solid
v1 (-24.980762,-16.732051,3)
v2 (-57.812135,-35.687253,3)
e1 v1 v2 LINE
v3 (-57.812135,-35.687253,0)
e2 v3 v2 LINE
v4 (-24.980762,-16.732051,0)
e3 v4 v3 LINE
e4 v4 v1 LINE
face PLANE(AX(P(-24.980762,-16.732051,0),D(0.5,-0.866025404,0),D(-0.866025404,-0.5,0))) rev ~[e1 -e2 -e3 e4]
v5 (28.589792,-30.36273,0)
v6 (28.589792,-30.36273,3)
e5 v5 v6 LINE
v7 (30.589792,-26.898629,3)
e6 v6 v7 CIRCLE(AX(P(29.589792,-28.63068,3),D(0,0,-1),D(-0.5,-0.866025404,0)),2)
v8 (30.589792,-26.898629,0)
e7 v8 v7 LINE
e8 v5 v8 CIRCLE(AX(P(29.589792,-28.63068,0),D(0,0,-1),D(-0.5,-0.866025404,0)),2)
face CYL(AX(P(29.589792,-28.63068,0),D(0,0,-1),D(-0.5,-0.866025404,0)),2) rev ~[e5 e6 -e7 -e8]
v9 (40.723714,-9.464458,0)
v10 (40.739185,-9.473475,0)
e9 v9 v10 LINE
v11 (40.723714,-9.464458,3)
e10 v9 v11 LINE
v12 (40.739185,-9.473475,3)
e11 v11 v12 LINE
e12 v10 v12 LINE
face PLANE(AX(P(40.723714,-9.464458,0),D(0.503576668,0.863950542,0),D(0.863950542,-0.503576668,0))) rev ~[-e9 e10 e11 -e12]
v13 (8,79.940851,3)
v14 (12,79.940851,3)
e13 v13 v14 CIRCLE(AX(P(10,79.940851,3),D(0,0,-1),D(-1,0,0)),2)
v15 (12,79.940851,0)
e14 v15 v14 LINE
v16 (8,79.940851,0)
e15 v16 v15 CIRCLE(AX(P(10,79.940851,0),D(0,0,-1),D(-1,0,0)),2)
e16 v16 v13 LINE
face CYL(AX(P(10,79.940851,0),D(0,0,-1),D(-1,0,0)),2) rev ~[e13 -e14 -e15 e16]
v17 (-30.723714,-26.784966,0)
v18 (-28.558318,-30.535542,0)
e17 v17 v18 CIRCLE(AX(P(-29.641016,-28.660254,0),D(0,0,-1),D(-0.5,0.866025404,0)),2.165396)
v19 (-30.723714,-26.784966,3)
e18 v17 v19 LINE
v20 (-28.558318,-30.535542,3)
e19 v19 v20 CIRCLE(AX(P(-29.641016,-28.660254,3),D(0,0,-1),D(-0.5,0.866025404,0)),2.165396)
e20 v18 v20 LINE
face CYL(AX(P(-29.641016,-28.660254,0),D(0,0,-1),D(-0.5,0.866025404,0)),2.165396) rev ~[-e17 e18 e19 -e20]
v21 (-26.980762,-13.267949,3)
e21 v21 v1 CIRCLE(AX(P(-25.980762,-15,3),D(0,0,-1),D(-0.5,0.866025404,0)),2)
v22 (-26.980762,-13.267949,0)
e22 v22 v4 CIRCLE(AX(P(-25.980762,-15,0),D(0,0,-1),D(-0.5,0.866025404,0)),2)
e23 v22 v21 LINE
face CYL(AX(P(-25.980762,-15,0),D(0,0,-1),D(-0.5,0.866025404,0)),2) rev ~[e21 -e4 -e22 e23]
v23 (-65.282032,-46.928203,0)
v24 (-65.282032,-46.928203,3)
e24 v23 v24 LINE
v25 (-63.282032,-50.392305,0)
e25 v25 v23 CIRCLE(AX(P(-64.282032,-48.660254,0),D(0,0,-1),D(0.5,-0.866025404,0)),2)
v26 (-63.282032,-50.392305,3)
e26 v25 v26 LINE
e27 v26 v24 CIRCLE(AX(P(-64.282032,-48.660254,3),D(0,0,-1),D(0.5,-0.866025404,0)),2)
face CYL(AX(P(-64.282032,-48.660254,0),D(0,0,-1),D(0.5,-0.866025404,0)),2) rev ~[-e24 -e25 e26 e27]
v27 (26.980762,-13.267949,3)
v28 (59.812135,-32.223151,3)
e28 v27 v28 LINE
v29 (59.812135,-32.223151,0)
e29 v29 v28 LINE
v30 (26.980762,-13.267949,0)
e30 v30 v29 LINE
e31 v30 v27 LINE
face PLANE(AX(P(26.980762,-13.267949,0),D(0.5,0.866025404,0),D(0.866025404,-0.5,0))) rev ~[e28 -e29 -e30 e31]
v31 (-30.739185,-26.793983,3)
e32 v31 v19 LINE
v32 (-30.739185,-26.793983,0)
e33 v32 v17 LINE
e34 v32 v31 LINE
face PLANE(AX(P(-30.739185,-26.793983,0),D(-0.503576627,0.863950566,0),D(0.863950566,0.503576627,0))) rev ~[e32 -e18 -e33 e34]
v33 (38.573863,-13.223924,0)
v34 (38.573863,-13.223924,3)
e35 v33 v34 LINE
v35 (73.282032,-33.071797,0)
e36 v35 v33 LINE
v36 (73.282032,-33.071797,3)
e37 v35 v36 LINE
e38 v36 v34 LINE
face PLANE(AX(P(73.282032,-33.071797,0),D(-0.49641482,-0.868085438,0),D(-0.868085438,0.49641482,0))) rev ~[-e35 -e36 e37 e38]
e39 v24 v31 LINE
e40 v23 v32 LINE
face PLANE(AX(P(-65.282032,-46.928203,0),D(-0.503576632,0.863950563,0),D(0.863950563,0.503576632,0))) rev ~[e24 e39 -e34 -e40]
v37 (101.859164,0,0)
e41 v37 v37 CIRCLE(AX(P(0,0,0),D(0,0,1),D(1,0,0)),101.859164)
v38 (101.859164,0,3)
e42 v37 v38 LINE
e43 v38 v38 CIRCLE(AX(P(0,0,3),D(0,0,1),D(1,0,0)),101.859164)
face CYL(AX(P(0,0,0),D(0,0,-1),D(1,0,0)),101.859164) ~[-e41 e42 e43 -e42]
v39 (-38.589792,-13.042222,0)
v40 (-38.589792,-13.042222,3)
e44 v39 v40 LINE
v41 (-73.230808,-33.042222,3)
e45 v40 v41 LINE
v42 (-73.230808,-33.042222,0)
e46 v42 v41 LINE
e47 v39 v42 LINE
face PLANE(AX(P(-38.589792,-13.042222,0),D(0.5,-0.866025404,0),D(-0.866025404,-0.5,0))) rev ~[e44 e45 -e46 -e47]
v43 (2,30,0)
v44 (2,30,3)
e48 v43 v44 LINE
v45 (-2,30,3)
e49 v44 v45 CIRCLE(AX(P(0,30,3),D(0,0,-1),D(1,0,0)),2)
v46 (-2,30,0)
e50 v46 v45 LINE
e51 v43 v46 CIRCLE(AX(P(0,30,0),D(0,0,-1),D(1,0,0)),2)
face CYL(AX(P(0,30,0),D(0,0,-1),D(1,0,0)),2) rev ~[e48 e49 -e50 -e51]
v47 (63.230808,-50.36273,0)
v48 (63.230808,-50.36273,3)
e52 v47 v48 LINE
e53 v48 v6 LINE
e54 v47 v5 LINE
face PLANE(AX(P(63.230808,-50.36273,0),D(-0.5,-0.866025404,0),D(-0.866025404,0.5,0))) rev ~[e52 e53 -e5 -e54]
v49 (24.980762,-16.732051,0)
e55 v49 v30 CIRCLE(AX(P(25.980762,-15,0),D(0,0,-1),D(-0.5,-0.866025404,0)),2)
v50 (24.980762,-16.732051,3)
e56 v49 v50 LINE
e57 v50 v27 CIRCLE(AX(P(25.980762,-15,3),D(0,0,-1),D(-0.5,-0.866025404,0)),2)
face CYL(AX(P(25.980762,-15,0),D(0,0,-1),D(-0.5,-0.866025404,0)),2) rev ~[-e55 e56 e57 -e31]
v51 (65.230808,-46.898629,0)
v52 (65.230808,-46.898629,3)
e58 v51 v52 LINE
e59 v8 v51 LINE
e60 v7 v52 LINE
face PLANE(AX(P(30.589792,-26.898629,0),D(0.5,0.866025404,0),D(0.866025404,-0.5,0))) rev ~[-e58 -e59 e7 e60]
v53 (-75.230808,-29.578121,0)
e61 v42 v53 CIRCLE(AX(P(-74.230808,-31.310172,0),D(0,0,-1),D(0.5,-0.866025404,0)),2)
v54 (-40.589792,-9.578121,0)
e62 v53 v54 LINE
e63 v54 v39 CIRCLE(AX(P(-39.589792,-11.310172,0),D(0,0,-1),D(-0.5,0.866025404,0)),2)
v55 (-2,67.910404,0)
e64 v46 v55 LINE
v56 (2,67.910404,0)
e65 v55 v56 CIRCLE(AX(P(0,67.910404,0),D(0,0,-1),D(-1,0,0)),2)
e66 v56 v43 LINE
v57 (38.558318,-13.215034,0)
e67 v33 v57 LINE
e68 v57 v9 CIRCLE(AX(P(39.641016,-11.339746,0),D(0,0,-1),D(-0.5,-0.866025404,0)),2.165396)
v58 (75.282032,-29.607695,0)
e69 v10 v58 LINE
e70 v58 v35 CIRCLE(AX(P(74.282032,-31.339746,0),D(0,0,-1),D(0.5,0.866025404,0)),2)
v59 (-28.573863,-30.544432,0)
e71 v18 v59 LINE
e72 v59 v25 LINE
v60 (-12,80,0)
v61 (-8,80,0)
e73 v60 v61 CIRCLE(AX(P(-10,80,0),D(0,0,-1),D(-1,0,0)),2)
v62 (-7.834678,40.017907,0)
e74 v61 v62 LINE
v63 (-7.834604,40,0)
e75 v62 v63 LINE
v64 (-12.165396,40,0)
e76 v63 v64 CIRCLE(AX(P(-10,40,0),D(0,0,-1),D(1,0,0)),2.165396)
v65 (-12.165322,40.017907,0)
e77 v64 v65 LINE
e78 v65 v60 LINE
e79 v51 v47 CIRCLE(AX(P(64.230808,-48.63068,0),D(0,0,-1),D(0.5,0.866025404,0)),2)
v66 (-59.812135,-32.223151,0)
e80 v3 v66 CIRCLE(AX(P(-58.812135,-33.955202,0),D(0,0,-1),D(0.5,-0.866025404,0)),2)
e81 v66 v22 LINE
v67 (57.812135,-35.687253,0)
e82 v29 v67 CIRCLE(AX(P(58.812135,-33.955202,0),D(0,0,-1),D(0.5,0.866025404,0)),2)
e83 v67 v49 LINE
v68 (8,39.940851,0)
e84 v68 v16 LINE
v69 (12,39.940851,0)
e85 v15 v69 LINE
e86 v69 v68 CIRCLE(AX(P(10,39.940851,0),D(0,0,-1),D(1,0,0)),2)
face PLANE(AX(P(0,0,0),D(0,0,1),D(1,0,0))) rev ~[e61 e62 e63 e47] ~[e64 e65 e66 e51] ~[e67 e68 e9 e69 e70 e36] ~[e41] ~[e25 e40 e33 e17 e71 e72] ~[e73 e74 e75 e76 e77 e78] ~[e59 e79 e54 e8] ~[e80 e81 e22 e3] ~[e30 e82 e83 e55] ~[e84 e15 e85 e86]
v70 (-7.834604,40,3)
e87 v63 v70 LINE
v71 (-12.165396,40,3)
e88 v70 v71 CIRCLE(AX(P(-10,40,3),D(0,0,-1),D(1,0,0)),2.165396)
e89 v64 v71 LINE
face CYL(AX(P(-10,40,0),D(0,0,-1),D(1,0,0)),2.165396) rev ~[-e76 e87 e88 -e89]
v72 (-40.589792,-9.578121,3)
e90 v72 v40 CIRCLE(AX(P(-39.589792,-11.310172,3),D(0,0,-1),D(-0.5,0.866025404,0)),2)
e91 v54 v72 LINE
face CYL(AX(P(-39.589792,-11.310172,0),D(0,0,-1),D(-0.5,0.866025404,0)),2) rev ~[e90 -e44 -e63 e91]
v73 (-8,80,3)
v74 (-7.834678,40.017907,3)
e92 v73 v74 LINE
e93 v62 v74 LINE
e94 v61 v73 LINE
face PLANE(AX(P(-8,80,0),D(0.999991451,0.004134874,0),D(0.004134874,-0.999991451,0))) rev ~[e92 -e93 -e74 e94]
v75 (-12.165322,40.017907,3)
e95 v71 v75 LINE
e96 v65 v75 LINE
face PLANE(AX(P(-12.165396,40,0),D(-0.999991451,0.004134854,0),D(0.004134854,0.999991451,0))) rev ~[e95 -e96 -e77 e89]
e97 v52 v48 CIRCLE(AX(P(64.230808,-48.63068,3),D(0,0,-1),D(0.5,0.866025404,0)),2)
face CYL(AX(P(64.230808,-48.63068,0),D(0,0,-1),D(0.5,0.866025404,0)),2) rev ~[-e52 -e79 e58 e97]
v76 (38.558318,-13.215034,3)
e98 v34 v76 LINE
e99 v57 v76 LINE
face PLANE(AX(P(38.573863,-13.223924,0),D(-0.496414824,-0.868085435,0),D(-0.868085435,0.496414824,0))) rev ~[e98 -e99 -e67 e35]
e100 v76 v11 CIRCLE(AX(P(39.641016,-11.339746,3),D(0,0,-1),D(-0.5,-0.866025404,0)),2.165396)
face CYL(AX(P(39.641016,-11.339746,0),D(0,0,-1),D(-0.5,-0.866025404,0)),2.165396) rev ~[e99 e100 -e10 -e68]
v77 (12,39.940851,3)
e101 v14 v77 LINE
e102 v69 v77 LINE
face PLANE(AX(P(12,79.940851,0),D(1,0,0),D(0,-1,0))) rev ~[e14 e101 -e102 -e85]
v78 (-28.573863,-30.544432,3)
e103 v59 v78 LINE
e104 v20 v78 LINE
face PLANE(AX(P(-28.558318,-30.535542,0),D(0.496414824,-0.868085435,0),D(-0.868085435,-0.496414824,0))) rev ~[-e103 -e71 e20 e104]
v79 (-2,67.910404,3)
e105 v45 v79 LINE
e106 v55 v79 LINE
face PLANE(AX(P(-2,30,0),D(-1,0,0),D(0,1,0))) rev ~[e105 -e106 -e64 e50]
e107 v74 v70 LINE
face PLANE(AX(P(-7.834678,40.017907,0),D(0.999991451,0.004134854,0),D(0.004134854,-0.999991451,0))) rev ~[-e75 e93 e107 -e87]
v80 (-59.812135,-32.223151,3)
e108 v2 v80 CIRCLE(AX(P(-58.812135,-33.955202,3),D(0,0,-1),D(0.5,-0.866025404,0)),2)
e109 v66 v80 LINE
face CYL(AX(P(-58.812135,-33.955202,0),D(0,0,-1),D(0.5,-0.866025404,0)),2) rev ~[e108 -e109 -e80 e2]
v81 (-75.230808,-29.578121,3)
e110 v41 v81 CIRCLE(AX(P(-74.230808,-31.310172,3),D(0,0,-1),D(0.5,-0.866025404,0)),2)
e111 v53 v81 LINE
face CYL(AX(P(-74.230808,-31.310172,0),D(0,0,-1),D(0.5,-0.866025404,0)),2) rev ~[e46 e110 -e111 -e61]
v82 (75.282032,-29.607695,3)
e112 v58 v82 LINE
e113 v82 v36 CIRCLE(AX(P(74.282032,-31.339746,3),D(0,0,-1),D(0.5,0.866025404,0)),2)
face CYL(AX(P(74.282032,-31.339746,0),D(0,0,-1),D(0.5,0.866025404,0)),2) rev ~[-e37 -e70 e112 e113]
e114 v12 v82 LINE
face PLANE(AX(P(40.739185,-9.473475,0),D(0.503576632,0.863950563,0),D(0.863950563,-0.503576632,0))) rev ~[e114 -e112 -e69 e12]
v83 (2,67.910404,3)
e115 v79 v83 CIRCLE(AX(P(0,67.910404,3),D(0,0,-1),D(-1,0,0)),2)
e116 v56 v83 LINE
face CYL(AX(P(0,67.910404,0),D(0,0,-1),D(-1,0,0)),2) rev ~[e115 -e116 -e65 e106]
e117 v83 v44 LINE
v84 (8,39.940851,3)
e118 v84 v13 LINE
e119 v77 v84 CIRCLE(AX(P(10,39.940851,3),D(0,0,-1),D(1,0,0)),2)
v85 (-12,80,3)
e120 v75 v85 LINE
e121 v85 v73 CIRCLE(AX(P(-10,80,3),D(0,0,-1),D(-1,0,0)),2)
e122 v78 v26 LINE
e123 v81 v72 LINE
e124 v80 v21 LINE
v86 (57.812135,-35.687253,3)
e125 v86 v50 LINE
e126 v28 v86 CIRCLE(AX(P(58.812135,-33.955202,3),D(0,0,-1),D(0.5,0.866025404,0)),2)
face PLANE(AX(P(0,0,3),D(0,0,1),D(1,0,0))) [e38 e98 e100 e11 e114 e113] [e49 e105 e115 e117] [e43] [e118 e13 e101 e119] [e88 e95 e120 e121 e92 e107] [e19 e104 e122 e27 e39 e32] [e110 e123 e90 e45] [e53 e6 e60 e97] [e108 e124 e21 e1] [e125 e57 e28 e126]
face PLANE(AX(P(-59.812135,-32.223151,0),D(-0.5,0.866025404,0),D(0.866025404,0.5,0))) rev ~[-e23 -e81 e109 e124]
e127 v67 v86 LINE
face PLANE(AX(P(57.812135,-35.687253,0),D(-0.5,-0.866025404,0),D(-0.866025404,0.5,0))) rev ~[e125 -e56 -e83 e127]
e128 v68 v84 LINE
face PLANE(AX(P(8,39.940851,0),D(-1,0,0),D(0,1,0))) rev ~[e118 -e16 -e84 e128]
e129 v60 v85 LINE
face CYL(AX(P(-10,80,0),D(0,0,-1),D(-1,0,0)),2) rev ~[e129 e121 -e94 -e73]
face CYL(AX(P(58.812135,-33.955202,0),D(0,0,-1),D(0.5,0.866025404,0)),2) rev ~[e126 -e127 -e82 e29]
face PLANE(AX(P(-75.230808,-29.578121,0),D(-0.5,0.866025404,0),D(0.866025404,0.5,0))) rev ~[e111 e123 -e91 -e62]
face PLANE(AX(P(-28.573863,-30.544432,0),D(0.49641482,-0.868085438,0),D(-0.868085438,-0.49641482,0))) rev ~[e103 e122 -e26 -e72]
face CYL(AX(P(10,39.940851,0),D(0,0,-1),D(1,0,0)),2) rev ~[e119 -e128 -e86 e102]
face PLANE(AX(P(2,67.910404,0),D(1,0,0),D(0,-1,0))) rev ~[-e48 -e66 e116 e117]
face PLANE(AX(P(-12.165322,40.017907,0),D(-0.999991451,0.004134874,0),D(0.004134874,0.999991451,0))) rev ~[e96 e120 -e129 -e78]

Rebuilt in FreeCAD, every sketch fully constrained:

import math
import FreeCAD as App
import Part
import Sketcher

V = App.Vector
Q = App.Units.Quantity

doc = App.newDocument("Part")
body = doc.addObject("PartDesign::Body", "Body")

sketch1 = body.newObject("Sketcher::SketchObject", "Sketch")
sketch1.AttachmentSupport = (doc.getObject("XY_Plane"), [""])
sketch1.MapMode = "FlatFace"
sketch1.addGeometry([
    Part.Circle(V(0, 0, 0), V(0, 0, 1), 101.859),
    Part.LineSegment(V(-28.558, -30.536, 0), V(-28.574, -30.544, 0)),
    Part.LineSegment(V(-28.574, -30.544, 0), V(-63.282, -50.392, 0)),
    Part.ArcOfCircle(Part.Circle(V(-64.282, -48.66, 0), V(0, 0, 1), 2), math.radians(120), math.radians(300)),
    Part.LineSegment(V(-65.282, -46.928, 0), V(-30.739, -26.794, 0)),
    Part.LineSegment(V(-30.739, -26.794, 0), V(-30.724, -26.785, 0)),
    Part.ArcOfCircle(Part.Circle(V(-29.641, -28.66, 0), V(0, 0, 1), 2.165), math.radians(-60), math.radians(120)),
    Part.ArcOfCircle(Part.Circle(V(-39.59, -11.31, 0), V(0, 0, 1), 2), math.radians(-60), math.radians(120)),
    Part.LineSegment(V(-38.59, -13.042, 0), V(-73.231, -33.042, 0)),
    Part.ArcOfCircle(Part.Circle(V(-74.231, -31.31, 0), V(0, 0, 1), 2), math.radians(120), math.radians(300)),
    Part.LineSegment(V(-75.231, -29.578, 0), V(-40.59, -9.578, 0)),
    Part.ArcOfCircle(Part.Circle(V(-25.981, -15, 0), V(0, 0, 1), 2), math.radians(-60), math.radians(120)),
    Part.LineSegment(V(-24.981, -16.732, 0), V(-57.812, -35.687, 0)),
    Part.ArcOfCircle(Part.Circle(V(-58.812, -33.955, 0), V(0, 0, 1), 2), math.radians(120), math.radians(300)),
    Part.LineSegment(V(-59.812, -32.223, 0), V(-26.981, -13.268, 0)),
    Part.ArcOfCircle(Part.Circle(V(29.59, -28.631, 0), V(0, 0, 1), 2), math.radians(60), math.radians(240)),
    Part.LineSegment(V(30.59, -26.899, 0), V(65.231, -46.899, 0)),
    Part.ArcOfCircle(Part.Circle(V(64.231, -48.631, 0), V(0, 0, 1), 2), math.radians(-120), math.radians(60)),
    Part.LineSegment(V(63.231, -50.363, 0), V(28.59, -30.363, 0)),
    Part.ArcOfCircle(Part.Circle(V(25.981, -15, 0), V(0, 0, 1), 2), math.radians(60), math.radians(240)),
    Part.LineSegment(V(26.981, -13.268, 0), V(59.812, -32.223, 0)),
    Part.ArcOfCircle(Part.Circle(V(58.812, -33.955, 0), V(0, 0, 1), 2), math.radians(-120), math.radians(60)),
    Part.LineSegment(V(57.812, -35.687, 0), V(24.981, -16.732, 0)),
    Part.LineSegment(V(40.724, -9.464, 0), V(40.739, -9.473, 0)),
    Part.LineSegment(V(40.739, -9.473, 0), V(75.282, -29.608, 0)),
    Part.ArcOfCircle(Part.Circle(V(74.282, -31.34, 0), V(0, 0, 1), 2), math.radians(-120), math.radians(60)),
    Part.LineSegment(V(73.282, -33.072, 0), V(38.574, -13.224, 0)),
    Part.LineSegment(V(38.574, -13.224, 0), V(38.558, -13.215, 0)),
    Part.ArcOfCircle(Part.Circle(V(39.641, -11.34, 0), V(0, 0, 1), 2.165), math.radians(60), math.radians(240)),
    Part.ArcOfCircle(Part.Circle(V(0, 30, 0), V(0, 0, 1), 2), math.radians(180), math.radians(360)),
    Part.LineSegment(V(-2, 30, 0), V(-2, 67.91, 0)),
    Part.ArcOfCircle(Part.Circle(V(0, 67.91, 0), V(0, 0, 1), 2), math.radians(0), math.radians(180)),
    Part.LineSegment(V(2, 67.91, 0), V(2, 30, 0)),
    Part.LineSegment(V(-12.165, 40, 0), V(-12.165, 40.018, 0)),
    Part.LineSegment(V(-12.165, 40.018, 0), V(-12, 80, 0)),
    Part.ArcOfCircle(Part.Circle(V(-10, 80, 0), V(0, 0, 1), 2), math.radians(0), math.radians(180)),
    Part.LineSegment(V(-8, 80, 0), V(-7.835, 40.018, 0)),
    Part.LineSegment(V(-7.835, 40.018, 0), V(-7.835, 40, 0)),
    Part.ArcOfCircle(Part.Circle(V(-10, 40, 0), V(0, 0, 1), 2.165), math.radians(180), math.radians(360)),
    Part.ArcOfCircle(Part.Circle(V(10, 39.941, 0), V(0, 0, 1), 2), math.radians(180), math.radians(360)),
    Part.LineSegment(V(8, 39.941, 0), V(8, 79.941, 0)),
    Part.ArcOfCircle(Part.Circle(V(10, 79.941, 0), V(0, 0, 1), 2), math.radians(0), math.radians(180)),
    Part.LineSegment(V(12, 79.941, 0), V(12, 39.941, 0)),
], False)
sketch1.addConstraint([
    Sketcher.Constraint("Coincident", 1, 2, 2, 1),
    Sketcher.Constraint("Coincident", 2, 2, 3, 2),
    Sketcher.Constraint("Coincident", 3, 1, 4, 1),
    Sketcher.Constraint("Coincident", 4, 2, 5, 1),
    Sketcher.Constraint("Coincident", 5, 2, 6, 2),
    Sketcher.Constraint("Coincident", 6, 1, 1, 1),
    Sketcher.Constraint("Tangent", 7, 1, 8, 1),
    Sketcher.Constraint("Tangent", 8, 2, 9, 2),
    Sketcher.Constraint("Tangent", 9, 1, 10, 1),
    Sketcher.Constraint("Tangent", 10, 2, 7, 2),
    Sketcher.Constraint("Tangent", 11, 1, 12, 1),
    Sketcher.Constraint("Tangent", 12, 2, 13, 2),
    Sketcher.Constraint("Tangent", 13, 1, 14, 1),
    Sketcher.Constraint("Tangent", 14, 2, 11, 2),
    Sketcher.Constraint("Tangent", 15, 1, 16, 1),
    Sketcher.Constraint("Tangent", 16, 2, 17, 2),
    Sketcher.Constraint("Tangent", 17, 1, 18, 1),
    Sketcher.Constraint("Tangent", 18, 2, 15, 2),
    Sketcher.Constraint("Tangent", 19, 1, 20, 1),
    Sketcher.Constraint("Tangent", 20, 2, 21, 2),
    Sketcher.Constraint("Tangent", 21, 1, 22, 1),
    Sketcher.Constraint("Tangent", 22, 2, 19, 2),
    Sketcher.Constraint("Coincident", 23, 2, 24, 1),
    Sketcher.Constraint("Coincident", 24, 2, 25, 2),
    Sketcher.Constraint("Coincident", 25, 1, 26, 1),
    Sketcher.Constraint("Coincident", 26, 2, 27, 1),
    Sketcher.Constraint("Coincident", 27, 2, 28, 2),
    Sketcher.Constraint("Coincident", 28, 1, 23, 1),
    Sketcher.Constraint("Tangent", 29, 1, 30, 1),
    Sketcher.Constraint("Tangent", 30, 2, 31, 2),
    Sketcher.Constraint("Tangent", 31, 1, 32, 1),
    Sketcher.Constraint("Tangent", 32, 2, 29, 2),
    Sketcher.Constraint("Coincident", 33, 2, 34, 1),
    Sketcher.Constraint("Coincident", 34, 2, 35, 2),
    Sketcher.Constraint("Coincident", 35, 1, 36, 1),
    Sketcher.Constraint("Coincident", 36, 2, 37, 1),
    Sketcher.Constraint("Coincident", 37, 2, 38, 2),
    Sketcher.Constraint("Coincident", 38, 1, 33, 1),
    Sketcher.Constraint("Tangent", 39, 1, 40, 1),
    Sketcher.Constraint("Tangent", 40, 2, 41, 2),
    Sketcher.Constraint("Tangent", 41, 1, 42, 1),
    Sketcher.Constraint("Tangent", 42, 2, 39, 2),
    Sketcher.Constraint("Vertical", 30),
    Sketcher.Constraint("Vertical", 32),
    Sketcher.Constraint("Vertical", 40),
    Sketcher.Constraint("Vertical", 42),
    Sketcher.Constraint("Coincident", 0, 3, -1, 1),
    Sketcher.Constraint("Equal", 3, 7),
    Sketcher.Constraint("Equal", 7, 9),
    Sketcher.Constraint("Equal", 9, 11),
    Sketcher.Constraint("Equal", 11, 13),
    Sketcher.Constraint("Equal", 13, 15),
    Sketcher.Constraint("Equal", 15, 17),
    Sketcher.Constraint("Equal", 17, 19),
    Sketcher.Constraint("Equal", 19, 21),
    Sketcher.Constraint("Equal", 21, 25),
    Sketcher.Constraint("Equal", 6, 28),
    Sketcher.Constraint("Equal", 25, 29),
    Sketcher.Constraint("Equal", 31, 35),
    Sketcher.Constraint("Equal", 28, 38),
    Sketcher.Constraint("Equal", 35, 39),
    Sketcher.Constraint("Symmetric", 11, 3, 19, 3, -2),
    Sketcher.Constraint("Symmetric", 13, 3, 21, 3, -2),
    Sketcher.Constraint("PointOnObject", 29, 3, -2),
    Sketcher.Constraint("Parallel", 1, 2),
    Sketcher.Constraint("Parallel", 4, 5),
    Sketcher.Constraint("Parallel", 10, 12),
    Sketcher.Constraint("Parallel", 18, 20),
    Sketcher.Constraint("Parallel", 23, 24),
    Sketcher.Constraint("Parallel", 26, 27),
    Sketcher.Constraint("Parallel", 33, 34),
    Sketcher.Constraint("Parallel", 36, 37),
    Sketcher.Constraint("Horizontal", 35, 3, 34, 2),
    Sketcher.Constraint("Horizontal", 34, 2, 35, 1),
    Sketcher.Constraint("Horizontal", 33, 2, 36, 2),
    Sketcher.Constraint("Horizontal", 38, 3, 37, 2),
    Sketcher.Constraint("Horizontal", 37, 2, 38, 1),
    Sketcher.Constraint("Vertical", 35, 3, 38, 3),
    Sketcher.Constraint("Equal", 2, 4),
    Sketcher.Constraint("Equal", 1, 5),
    Sketcher.Constraint("Equal", 10, 16),
    Sketcher.Constraint("Equal", 5, 23),
    Sketcher.Constraint("Equal", 4, 24),
    Sketcher.Constraint("Equal", 24, 26),
    Sketcher.Constraint("Equal", 23, 27),
    Sketcher.Constraint("Equal", 27, 33),
    Sketcher.Constraint("Equal", 26, 34),
    Sketcher.Constraint("Radius", 3, 2.0),
    Sketcher.Constraint("DistanceY", 40, 1, 40, 2, 40.0),
    Sketcher.Constraint("Angle", 8, Q("-150 deg")),
    Sketcher.Constraint("Distance", 8, 40.0),
    Sketcher.Constraint("DistanceY", 11, 3, -1, 1, 15.0),
    Sketcher.Constraint("DistanceY", -1, 1, 29, 3, 30.0),
    Sketcher.Constraint("DistanceX", 35, 3, -1, 1, 10.0),
    Sketcher.Constraint("DistanceY", -1, 1, 35, 3, 80.0),
    Sketcher.Constraint("DistanceY", -1, 1, 38, 3, 40.0),
    Sketcher.Constraint("DistanceX", -1, 1, 39, 3, 10.0),
    Sketcher.Constraint("Diameter", 0, 203.718327),
    Sketcher.Constraint("Radius", 6, 2.165396),
    Sketcher.Constraint("DistanceY", 13, 3, -1, 1, 33.955202),
    Sketcher.Constraint("DistanceY", 30, 1, 30, 2, 37.910404),
    Sketcher.Constraint("DistanceX", 7, 3, -1, 1, 39.589792),
    Sketcher.Constraint("DistanceY", 7, 3, -1, 1, 11.310172),
    Sketcher.Constraint("DistanceX", -1, 1, 15, 3, 29.589792),
    Sketcher.Constraint("DistanceY", 15, 3, -1, 1, 28.63068),
    Sketcher.Constraint("DistanceY", -1, 1, 39, 3, 39.940851),
    Sketcher.Constraint("DistanceY", 1, 2, -1, 1, 30.544432),
    Sketcher.Constraint("Distance", 1, 0.017907),
    Sketcher.Constraint("DistanceX", 3, 3, -1, 1, 64.282032),
    Sketcher.Constraint("DistanceY", 3, 3, -1, 1, 48.660254),
    Sketcher.Constraint("DistanceX", 6, 3, -1, 1, 29.641016),
    Sketcher.Constraint("DistanceY", 6, 3, -1, 1, 28.660254),
    Sketcher.Constraint("DistanceX", 11, 3, -1, 1, 25.980762),
    Sketcher.Constraint("DistanceX", -1, 1, 25, 3, 74.282032),
    Sketcher.Constraint("DistanceY", 25, 3, -1, 1, 31.339746),
    Sketcher.Constraint("DistanceX", -1, 1, 28, 3, 39.641016),
    Sketcher.Constraint("DistanceY", 28, 3, -1, 1, 11.339746),
    Sketcher.Constraint("DistanceX", 3, 1, -1, 1, 65.282032),
    Sketcher.Constraint("DistanceX", -1, 1, 23, 2, 40.739185),
    Sketcher.Constraint("DistanceX", -1, 1, 25, 1, 73.282032),
])
pad1 = body.newObject("PartDesign::Pad", "Pad")
pad1.Profile = sketch1
pad1.Length = 3

doc.recompute()
